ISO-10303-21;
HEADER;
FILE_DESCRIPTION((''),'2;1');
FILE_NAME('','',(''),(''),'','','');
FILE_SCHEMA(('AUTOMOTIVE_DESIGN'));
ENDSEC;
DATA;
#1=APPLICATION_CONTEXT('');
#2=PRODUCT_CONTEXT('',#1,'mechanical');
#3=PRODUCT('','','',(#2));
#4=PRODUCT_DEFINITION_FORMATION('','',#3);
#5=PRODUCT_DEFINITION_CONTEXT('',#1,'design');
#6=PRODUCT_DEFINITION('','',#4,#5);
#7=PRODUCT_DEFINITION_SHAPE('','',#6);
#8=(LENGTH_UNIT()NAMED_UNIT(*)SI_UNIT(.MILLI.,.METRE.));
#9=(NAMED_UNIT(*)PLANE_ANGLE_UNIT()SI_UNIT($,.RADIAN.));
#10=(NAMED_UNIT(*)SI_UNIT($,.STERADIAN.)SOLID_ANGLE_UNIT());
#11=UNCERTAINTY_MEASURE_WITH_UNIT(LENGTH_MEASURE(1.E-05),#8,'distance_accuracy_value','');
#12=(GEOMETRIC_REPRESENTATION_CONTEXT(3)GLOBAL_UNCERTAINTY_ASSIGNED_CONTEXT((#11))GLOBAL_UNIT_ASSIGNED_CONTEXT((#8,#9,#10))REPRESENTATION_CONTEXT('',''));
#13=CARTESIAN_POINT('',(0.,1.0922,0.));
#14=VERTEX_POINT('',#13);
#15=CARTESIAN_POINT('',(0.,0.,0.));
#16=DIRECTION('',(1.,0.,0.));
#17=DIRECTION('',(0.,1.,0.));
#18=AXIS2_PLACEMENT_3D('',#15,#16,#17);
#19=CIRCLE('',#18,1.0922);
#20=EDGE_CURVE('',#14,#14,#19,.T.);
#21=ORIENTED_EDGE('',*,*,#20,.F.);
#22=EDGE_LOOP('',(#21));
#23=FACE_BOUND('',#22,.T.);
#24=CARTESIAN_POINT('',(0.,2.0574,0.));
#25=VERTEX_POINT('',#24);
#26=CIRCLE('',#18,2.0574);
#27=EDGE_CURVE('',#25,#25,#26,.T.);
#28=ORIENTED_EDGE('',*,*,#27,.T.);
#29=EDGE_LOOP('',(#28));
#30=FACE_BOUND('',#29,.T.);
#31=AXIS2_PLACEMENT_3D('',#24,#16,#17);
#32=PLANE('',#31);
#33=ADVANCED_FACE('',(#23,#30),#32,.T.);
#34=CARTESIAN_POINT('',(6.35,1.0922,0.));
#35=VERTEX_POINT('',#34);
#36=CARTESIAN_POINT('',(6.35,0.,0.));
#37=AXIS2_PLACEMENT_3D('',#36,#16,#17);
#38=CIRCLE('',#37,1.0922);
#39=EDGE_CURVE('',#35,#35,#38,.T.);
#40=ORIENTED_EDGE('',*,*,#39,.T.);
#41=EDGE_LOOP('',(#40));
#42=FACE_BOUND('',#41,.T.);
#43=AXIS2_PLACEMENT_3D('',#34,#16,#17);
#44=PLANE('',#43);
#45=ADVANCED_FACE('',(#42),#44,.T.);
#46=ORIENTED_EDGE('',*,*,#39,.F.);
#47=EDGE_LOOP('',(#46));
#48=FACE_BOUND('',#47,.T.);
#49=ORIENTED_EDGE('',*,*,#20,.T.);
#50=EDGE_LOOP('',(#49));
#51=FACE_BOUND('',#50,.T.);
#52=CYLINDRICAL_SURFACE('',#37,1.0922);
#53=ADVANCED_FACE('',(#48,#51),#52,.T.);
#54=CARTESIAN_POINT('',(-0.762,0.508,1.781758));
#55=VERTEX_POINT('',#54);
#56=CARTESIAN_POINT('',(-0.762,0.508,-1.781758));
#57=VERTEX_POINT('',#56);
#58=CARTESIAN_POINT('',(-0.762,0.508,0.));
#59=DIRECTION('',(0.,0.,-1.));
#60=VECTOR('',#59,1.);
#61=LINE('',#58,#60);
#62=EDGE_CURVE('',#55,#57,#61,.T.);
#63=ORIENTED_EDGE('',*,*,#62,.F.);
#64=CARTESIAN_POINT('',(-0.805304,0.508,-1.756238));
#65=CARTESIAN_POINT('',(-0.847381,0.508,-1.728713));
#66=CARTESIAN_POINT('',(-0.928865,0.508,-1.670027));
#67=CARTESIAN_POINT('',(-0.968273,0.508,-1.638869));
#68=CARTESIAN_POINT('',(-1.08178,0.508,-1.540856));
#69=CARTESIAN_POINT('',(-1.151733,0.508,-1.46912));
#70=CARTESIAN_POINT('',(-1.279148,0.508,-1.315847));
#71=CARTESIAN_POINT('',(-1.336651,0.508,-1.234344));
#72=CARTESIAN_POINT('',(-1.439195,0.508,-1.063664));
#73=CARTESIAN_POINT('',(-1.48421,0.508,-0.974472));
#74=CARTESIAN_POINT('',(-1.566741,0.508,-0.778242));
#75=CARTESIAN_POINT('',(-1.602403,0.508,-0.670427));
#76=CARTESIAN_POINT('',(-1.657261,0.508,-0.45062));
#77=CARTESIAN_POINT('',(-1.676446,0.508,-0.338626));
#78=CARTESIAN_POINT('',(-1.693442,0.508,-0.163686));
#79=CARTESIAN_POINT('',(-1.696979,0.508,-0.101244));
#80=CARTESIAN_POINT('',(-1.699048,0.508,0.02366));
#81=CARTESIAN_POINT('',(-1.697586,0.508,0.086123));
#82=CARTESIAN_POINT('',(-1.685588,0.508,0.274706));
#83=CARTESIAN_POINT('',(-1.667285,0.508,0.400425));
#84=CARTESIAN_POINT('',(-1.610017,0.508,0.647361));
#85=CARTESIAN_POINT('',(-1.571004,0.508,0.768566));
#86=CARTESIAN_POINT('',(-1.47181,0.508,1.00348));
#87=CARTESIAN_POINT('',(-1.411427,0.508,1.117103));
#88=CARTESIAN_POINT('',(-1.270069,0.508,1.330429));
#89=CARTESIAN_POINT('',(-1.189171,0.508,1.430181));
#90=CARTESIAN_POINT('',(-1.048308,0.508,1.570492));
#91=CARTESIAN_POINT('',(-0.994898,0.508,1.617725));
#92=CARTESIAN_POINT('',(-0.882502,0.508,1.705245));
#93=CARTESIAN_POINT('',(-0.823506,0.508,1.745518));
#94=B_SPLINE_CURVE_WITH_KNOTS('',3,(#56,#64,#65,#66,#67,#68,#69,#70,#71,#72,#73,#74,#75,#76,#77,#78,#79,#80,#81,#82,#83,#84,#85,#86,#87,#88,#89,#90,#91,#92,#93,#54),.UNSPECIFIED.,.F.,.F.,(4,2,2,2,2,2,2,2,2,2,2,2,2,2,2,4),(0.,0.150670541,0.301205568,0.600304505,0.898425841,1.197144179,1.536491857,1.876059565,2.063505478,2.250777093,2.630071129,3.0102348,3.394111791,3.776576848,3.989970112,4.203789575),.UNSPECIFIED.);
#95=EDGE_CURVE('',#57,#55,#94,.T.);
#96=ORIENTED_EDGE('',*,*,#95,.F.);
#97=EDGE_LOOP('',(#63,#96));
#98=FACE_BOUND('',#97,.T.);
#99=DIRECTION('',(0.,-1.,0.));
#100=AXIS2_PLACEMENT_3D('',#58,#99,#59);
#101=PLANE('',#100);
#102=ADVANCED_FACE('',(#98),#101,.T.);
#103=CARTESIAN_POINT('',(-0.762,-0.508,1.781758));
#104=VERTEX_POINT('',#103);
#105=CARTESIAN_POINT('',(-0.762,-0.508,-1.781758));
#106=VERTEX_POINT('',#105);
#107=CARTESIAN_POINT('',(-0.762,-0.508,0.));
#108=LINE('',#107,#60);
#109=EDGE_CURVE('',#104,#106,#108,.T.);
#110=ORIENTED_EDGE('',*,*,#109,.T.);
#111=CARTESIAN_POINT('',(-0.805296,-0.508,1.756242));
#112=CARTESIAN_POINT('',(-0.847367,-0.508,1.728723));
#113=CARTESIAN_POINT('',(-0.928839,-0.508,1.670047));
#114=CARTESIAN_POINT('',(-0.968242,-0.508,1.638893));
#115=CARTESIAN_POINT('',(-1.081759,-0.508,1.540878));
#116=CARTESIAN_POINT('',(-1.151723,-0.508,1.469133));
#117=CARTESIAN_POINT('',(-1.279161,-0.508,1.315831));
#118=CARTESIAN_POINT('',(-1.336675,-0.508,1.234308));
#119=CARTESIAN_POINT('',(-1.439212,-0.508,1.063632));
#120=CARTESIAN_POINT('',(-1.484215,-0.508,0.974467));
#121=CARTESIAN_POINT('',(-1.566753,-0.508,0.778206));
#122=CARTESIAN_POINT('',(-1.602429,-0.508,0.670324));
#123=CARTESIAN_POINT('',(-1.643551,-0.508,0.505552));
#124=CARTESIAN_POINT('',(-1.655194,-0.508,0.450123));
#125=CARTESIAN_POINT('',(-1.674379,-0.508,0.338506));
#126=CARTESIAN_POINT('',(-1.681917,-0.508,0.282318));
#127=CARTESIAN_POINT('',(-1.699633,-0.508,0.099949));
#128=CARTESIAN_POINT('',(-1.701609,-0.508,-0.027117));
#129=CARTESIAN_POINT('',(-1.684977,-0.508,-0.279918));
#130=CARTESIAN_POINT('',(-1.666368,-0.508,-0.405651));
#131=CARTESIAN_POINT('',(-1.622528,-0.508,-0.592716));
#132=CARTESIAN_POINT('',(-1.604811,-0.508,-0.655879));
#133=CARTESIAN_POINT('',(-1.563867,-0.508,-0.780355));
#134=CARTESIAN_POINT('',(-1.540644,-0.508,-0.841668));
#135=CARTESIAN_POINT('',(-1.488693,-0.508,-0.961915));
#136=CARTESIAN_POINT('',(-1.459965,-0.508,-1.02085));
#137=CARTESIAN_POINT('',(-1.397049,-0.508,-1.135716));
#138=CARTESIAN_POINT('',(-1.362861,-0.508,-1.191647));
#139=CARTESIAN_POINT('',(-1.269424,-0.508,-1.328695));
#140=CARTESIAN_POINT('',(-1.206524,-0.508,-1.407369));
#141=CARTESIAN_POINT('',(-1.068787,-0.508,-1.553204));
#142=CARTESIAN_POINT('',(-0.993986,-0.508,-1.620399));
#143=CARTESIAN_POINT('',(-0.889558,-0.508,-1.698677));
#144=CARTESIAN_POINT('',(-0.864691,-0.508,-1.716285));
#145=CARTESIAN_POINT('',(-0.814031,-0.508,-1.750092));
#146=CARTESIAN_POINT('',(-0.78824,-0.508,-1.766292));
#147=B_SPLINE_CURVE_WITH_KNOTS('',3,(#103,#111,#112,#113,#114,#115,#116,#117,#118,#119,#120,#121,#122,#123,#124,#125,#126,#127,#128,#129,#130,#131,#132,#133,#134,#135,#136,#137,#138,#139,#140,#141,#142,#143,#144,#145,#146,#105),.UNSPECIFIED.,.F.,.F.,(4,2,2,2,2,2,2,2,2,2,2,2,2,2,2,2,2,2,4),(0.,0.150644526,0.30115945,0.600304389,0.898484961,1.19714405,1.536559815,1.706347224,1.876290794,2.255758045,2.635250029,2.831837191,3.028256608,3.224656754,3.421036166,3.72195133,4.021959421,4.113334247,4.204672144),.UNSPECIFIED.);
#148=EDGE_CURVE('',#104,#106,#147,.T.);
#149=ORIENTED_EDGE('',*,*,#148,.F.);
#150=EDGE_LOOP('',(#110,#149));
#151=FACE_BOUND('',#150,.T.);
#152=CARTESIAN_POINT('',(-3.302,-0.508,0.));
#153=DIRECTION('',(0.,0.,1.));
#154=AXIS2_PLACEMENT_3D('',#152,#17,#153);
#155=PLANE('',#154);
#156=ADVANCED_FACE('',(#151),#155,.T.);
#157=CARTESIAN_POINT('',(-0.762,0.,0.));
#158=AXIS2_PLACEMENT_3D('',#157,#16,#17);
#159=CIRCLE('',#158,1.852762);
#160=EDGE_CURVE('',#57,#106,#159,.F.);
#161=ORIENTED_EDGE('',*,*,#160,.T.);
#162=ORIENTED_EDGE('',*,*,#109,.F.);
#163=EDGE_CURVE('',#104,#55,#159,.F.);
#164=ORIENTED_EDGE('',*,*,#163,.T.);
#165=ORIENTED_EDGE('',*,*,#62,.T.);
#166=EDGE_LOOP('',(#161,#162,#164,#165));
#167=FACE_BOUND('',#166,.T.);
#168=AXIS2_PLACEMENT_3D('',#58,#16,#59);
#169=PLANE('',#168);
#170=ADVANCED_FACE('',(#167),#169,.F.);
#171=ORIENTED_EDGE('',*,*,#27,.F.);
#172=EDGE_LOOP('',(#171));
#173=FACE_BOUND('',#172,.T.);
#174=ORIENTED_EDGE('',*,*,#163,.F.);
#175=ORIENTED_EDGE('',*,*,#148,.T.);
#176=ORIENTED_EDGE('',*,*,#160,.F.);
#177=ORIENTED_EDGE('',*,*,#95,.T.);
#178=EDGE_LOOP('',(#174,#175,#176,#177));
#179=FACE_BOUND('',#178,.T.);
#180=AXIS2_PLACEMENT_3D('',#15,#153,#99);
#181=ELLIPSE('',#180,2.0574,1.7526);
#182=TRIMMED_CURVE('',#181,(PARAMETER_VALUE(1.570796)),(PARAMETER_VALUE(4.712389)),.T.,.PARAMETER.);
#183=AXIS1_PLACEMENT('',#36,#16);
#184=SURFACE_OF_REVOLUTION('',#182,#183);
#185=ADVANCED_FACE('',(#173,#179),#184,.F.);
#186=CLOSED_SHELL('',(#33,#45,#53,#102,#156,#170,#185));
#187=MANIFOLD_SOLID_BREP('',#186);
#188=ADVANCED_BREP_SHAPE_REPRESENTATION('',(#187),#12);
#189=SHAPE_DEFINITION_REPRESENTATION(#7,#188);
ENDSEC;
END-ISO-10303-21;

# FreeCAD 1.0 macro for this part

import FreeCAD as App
import Part
import Sketcher

V = App.Vector
Q = App.Units.Quantity


def add_polygon(sketch, points):
    """Adds a closed chain of lines whose ends are joined by coincident constraints."""
    first, n = sketch.GeometryCount, len(points)
    for a, b in zip(points, points[1:] + points[:1]):
        sketch.addGeometry(Part.LineSegment(App.Vector(*a, 0), App.Vector(*b, 0)), False)
    for i in range(n):
        sketch.addConstraint(Sketcher.Constraint("Coincident", first + i, 2, first + (i + 1) % n, 1))

doc = App.newDocument("Part")
body = doc.addObject("PartDesign::Body", "Body")

# Sketch on XY plane
sketch1 = body.newObject("Sketcher::SketchObject", "Sketch")
sketch1.AttachmentSupport = (doc.getObject("XY_Plane"), [""])
sketch1.MapMode = "FlatFace"
sketch1.addGeometry([
    Part.LineSegment(V(0, 1.0922, 0), V(0, 2.0574, 0)),  # 0
    Part.BSplineCurve([V(0, 2.0574, 0), V(-1.7526, 2.0574, 0), V(-1.7526, 0, 0)], [3, 3], [3.141592654, 4.71238898], False, 2, [1, 0.707106781, 1], False),  # 1
    Part.LineSegment(V(-1.7526, 0, 0), V(6.35, 0, 0)),  # 2
    Part.LineSegment(V(6.35, 0, 0), V(6.35, 1.0922, 0)),  # 3
    Part.LineSegment(V(6.35, 1.0922, 0), V(0, 1.0922, 0)),  # 4
], False)
sketch1.addConstraint([
    Sketcher.Constraint("Block", 1),
    Sketcher.Constraint("Coincident", 0, 2, 1, 1),
    Sketcher.Constraint("Coincident", 1, 2, 2, 1),
    Sketcher.Constraint("Coincident", 2, 2, 3, 1),
    Sketcher.Constraint("Coincident", 3, 2, 4, 1),
    Sketcher.Constraint("Coincident", 4, 2, 0, 1),
    Sketcher.Constraint("Vertical", 0),
    Sketcher.Constraint("Horizontal", 2),
    Sketcher.Constraint("Vertical", 3),
    Sketcher.Constraint("Horizontal", 4),
    Sketcher.Constraint("DistanceX", 4, 2, 4, 1, Q("0.25 in")),
    Sketcher.Constraint("DistanceY", 0, 1, 0, 2, Q("0.038 in")),
])
revolution = body.newObject("PartDesign::Revolution", "Revolution")
revolution.Profile = sketch1
revolution.ReferenceAxis = (sketch1, ["H_Axis"])
revolution.Angle = 360

# Sketch on XY plane
sketch2 = body.newObject("Sketcher::SketchObject", "Sketch001")
sketch2.AttachmentSupport = (doc.getObject("XY_Plane"), [""])
sketch2.MapMode = "FlatFace"
add_polygon(sketch2, [(-0.762, -0.508), (-0.762, 0.508), (-3.302, 0.508), (-3.302, -0.508)])  # lines 0-3
sketch2.addConstraint([
    Sketcher.Constraint("Vertical", 0),
    Sketcher.Constraint("Horizontal", 1),
    Sketcher.Constraint("Vertical", 2),
    Sketcher.Constraint("Horizontal", 3),
    Sketcher.Constraint("DistanceX", 1, 2, 1, 1, Q("0.1 in")),
    Sketcher.Constraint("DistanceY", 0, 1, 0, 2, Q("0.04 in")),
    Sketcher.Constraint("DistanceX", 0, 2, -1, 1, Q("0.03 in")),
    Sketcher.Constraint("DistanceY", -1, 1, 0, 2, Q("0.02 in")),
])
pocket1 = body.newObject("PartDesign::Pocket", "Pocket")
pocket1.Profile = sketch2
pocket1.Type = "ThroughAll"
pocket1.Midplane = True

doc.recompute()
